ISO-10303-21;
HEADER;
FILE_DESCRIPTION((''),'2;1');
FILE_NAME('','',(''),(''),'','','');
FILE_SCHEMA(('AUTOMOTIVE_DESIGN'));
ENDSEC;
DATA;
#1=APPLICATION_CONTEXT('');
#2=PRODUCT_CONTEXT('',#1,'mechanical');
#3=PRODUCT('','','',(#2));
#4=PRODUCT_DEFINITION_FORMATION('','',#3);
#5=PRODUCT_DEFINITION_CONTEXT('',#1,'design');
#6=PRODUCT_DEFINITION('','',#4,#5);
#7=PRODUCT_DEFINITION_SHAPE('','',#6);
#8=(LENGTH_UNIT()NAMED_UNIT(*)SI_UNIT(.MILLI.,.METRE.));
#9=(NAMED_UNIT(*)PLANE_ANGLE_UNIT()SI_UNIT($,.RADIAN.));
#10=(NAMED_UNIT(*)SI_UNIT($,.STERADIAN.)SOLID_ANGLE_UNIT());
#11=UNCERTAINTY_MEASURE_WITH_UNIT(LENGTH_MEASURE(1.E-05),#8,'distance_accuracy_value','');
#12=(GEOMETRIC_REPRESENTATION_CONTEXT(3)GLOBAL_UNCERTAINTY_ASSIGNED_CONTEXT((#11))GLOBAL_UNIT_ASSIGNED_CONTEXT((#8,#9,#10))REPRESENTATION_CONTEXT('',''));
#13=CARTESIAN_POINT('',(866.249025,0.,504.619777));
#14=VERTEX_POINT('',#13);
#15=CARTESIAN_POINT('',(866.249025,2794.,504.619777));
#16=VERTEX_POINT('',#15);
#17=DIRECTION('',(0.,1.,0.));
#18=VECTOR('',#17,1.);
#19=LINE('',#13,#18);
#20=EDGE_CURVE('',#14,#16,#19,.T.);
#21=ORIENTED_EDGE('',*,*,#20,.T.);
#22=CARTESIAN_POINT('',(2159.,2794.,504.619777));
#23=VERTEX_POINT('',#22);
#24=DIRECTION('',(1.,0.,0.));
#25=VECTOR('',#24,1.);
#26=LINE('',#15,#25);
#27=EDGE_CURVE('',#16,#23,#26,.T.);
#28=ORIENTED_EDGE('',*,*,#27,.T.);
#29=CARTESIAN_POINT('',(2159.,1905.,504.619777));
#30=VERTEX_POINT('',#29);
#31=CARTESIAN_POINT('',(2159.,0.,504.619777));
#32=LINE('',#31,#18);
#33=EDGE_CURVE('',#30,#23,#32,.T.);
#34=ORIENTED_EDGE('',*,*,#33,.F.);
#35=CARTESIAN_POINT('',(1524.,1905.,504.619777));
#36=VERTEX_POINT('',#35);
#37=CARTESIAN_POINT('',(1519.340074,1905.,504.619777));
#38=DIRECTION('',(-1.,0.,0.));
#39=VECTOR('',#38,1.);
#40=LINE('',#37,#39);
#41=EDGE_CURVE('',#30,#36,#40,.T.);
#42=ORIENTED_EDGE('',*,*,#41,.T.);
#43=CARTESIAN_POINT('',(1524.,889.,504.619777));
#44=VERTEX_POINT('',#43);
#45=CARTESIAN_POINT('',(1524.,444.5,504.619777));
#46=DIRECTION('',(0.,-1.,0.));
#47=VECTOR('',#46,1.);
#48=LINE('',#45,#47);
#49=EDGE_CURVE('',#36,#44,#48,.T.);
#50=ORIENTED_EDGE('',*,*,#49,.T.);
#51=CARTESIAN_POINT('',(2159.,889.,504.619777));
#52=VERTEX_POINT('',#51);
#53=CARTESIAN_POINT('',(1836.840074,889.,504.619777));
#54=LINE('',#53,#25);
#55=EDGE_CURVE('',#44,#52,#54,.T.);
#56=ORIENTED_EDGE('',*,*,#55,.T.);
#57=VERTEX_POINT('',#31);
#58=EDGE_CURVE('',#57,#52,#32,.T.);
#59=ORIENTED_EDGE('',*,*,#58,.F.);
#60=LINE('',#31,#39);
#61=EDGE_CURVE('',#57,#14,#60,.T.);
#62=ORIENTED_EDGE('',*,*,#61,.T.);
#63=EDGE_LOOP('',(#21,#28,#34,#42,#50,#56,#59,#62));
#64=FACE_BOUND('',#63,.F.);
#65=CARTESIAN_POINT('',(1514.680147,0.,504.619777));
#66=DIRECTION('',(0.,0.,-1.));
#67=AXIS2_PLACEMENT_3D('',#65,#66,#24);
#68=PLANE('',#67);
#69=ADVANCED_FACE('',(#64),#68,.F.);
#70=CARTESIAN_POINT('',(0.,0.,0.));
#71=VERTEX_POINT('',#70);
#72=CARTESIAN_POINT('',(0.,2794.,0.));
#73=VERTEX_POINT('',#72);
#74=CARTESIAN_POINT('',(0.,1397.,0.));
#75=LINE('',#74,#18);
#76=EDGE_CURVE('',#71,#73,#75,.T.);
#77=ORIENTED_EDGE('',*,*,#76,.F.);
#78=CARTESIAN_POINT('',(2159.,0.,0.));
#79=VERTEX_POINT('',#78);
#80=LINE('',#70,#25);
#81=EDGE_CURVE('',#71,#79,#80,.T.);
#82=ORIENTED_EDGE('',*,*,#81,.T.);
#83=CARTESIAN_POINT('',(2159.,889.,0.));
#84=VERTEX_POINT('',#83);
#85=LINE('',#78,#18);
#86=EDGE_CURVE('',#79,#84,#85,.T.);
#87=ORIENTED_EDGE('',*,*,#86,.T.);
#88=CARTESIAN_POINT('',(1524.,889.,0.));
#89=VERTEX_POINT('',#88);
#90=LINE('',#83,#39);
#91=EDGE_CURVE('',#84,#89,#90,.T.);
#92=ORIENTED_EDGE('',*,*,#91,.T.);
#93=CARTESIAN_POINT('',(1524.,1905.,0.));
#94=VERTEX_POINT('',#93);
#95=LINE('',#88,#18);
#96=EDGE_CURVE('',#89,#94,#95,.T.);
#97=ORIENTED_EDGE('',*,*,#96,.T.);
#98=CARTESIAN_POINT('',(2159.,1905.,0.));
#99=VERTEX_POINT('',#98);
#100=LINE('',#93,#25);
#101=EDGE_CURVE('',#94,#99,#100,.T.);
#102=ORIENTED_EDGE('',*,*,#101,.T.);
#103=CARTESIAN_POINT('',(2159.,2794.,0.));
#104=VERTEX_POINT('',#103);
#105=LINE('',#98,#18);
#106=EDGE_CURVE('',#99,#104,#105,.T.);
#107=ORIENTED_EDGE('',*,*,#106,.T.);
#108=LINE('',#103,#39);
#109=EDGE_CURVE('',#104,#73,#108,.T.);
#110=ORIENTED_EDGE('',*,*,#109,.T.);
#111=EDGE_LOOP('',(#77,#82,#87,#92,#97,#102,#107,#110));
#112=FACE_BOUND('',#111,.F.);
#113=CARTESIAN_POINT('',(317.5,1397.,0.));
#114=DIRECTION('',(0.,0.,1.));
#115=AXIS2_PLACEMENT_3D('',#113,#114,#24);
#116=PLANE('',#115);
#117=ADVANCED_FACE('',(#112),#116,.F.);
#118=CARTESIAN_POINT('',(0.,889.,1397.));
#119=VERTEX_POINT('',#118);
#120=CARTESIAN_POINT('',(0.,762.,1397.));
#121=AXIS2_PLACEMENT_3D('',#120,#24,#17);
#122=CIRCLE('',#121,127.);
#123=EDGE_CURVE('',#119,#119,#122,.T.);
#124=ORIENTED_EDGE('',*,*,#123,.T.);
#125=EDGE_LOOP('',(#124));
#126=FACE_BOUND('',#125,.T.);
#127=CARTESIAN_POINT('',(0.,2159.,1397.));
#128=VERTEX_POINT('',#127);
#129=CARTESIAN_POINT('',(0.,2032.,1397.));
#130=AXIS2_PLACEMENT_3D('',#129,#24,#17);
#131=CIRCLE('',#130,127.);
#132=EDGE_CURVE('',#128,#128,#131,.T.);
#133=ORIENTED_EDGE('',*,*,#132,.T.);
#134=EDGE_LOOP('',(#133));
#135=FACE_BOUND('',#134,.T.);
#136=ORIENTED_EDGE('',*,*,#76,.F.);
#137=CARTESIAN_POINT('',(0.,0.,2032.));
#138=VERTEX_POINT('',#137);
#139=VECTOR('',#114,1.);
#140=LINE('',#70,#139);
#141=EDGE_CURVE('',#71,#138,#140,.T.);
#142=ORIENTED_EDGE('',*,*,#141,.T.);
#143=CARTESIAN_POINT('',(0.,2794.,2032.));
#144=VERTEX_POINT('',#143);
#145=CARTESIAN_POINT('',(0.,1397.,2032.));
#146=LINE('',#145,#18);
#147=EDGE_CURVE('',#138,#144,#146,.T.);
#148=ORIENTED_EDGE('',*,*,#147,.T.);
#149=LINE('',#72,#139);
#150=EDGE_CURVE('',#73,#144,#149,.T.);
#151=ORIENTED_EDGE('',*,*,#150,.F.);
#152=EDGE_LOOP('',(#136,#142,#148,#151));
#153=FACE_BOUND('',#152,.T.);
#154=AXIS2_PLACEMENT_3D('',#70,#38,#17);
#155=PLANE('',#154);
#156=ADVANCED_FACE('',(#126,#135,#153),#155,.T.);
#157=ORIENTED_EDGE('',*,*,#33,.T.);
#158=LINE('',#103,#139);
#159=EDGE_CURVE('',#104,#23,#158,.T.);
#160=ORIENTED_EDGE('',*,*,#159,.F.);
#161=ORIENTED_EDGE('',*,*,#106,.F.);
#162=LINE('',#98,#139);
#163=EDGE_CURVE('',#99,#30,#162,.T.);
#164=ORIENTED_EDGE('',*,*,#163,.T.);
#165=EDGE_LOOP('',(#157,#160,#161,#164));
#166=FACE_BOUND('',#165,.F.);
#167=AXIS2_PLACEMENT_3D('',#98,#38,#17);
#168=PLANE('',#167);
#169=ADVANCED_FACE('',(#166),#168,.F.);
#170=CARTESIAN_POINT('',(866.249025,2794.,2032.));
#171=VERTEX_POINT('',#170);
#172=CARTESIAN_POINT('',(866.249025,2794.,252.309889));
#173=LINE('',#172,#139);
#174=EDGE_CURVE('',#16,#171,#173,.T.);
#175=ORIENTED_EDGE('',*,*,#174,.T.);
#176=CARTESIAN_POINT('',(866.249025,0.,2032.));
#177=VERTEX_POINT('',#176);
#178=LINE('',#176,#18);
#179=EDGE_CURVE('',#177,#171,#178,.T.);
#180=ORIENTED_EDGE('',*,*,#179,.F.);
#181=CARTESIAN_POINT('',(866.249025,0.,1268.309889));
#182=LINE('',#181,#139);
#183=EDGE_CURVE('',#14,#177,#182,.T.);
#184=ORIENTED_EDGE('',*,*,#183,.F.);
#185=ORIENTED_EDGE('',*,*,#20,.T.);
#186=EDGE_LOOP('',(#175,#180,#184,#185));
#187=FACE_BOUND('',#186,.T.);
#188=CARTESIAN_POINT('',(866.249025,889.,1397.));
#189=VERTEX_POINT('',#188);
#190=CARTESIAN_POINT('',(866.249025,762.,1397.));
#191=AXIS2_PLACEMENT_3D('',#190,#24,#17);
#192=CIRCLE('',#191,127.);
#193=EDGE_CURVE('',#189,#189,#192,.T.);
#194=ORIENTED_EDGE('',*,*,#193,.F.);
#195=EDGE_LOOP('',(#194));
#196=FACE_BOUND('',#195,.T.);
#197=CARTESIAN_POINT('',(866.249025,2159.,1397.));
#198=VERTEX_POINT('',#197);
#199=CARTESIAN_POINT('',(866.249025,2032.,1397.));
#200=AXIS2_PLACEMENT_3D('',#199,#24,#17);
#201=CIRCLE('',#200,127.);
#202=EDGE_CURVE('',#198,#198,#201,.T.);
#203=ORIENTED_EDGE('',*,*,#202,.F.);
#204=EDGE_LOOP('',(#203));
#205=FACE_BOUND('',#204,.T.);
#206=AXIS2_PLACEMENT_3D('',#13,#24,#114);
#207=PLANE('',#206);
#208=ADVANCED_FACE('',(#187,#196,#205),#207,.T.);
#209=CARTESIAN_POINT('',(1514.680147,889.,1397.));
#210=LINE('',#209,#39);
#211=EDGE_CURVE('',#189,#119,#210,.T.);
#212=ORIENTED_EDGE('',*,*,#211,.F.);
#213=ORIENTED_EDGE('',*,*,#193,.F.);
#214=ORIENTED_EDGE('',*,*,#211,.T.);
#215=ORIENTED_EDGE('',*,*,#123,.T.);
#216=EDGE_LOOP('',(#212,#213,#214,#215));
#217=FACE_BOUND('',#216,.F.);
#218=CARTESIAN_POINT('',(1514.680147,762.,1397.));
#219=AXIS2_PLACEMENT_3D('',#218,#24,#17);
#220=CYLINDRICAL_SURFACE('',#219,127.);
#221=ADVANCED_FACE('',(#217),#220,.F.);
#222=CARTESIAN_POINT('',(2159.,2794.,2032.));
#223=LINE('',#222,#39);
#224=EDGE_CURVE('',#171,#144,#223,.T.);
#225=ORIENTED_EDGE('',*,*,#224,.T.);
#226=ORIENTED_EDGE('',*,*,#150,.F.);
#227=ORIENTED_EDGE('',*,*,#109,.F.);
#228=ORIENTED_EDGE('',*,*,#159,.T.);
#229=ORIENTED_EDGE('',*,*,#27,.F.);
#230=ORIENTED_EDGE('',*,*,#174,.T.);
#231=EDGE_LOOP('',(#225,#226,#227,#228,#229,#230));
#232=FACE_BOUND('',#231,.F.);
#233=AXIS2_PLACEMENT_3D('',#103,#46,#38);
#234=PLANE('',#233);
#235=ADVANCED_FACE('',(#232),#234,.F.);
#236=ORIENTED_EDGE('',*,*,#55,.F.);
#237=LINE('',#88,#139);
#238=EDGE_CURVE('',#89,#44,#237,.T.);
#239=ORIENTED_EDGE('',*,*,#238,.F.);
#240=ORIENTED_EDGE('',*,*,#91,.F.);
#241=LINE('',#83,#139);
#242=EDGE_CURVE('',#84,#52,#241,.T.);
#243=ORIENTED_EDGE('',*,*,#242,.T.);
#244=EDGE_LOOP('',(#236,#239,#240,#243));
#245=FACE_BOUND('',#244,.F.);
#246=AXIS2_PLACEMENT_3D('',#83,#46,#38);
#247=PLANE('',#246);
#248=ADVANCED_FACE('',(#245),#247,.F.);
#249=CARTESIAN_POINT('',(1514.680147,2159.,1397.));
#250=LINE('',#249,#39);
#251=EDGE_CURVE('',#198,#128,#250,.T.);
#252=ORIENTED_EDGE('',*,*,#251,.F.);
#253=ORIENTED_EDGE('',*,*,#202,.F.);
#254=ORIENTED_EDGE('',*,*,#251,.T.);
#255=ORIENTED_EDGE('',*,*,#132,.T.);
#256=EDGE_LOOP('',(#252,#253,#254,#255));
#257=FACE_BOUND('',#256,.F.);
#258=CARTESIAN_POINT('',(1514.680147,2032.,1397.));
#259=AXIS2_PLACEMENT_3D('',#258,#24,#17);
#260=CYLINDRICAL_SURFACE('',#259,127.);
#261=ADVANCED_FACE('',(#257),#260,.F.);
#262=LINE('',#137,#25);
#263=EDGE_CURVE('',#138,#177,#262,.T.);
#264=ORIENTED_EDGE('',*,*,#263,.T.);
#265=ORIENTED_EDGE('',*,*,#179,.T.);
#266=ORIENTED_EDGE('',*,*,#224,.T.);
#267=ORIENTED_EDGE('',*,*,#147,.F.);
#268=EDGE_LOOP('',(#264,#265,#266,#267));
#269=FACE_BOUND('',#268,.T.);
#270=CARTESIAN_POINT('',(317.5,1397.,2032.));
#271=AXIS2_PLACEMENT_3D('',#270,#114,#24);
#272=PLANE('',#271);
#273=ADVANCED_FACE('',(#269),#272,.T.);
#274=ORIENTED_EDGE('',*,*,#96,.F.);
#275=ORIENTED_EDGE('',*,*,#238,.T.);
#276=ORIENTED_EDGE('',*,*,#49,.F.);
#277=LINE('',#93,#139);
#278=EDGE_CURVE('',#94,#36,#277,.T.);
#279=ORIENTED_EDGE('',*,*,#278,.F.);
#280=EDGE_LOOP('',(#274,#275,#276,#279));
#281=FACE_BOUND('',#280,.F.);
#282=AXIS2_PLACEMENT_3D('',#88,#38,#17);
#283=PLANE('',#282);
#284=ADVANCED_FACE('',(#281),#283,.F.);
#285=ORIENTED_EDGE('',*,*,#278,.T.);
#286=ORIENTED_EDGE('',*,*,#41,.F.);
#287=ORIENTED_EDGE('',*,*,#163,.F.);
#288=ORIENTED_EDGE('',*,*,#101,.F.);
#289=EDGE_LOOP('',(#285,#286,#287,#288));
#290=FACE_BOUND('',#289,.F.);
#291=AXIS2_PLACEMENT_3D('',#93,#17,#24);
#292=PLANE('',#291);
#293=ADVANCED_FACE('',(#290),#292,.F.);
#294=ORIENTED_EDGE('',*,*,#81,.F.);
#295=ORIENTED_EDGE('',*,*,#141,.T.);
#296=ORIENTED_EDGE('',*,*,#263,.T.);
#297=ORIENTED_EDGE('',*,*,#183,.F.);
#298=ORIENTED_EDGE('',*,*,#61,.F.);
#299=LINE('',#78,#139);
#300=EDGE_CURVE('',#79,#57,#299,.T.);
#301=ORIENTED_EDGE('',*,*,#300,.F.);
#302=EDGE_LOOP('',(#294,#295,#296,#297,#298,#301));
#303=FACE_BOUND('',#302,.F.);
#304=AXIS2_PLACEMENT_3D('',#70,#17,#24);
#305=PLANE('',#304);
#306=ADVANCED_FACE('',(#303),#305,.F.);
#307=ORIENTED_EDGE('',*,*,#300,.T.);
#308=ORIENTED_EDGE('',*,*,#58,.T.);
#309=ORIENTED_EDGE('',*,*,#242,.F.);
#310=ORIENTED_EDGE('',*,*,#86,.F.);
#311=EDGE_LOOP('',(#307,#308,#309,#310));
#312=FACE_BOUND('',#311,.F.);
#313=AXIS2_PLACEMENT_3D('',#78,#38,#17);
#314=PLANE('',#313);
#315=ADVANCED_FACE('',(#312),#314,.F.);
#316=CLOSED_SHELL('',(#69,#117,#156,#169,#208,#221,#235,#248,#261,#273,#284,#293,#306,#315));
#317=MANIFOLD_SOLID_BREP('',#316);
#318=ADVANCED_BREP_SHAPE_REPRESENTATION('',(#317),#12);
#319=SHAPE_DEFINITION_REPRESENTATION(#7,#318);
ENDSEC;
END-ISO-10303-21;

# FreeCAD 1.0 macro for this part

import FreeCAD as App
import Part
import Sketcher
from FreeCAD import Vector
Q = App.Units.Quantity


def add_polygon(sketch, points):
    """Adds a closed chain of lines whose ends are joined by coincident constraints."""
    first, n = sketch.GeometryCount, len(points)
    for a, b in zip(points, points[1:] + points[:1]):
        sketch.addGeometry(Part.LineSegment(App.Vector(*a, 0), App.Vector(*b, 0)), False)
    for i in range(n):
        sketch.addConstraint(Sketcher.Constraint("Coincident", first + i, 2, first + (i + 1) % n, 1))

doc = App.newDocument("Part")
body = doc.addObject("PartDesign::Body", "Body")

sketch1 = body.newObject("Sketcher::SketchObject", "Sketch")
sketch1.AttachmentSupport = (doc.getObject("XY_Plane"), [""])
sketch1.MapMode = "FlatFace"
add_polygon(sketch1, [(0, 2794), (0, 0), (2159, 0), (2159, 889), (1524, 889), (1524, 1905), (2159, 1905), (2159, 2794)])
sketch1.addConstraint([
    Sketcher.Constraint("Vertical", 0),
    Sketcher.Constraint("Horizontal", 1),
    Sketcher.Constraint("Vertical", 2),
    Sketcher.Constraint("Horizontal", 3),
    Sketcher.Constraint("Vertical", 4),
    Sketcher.Constraint("Horizontal", 5),
    Sketcher.Constraint("Vertical", 6),
    Sketcher.Constraint("Horizontal", 7),
    Sketcher.Constraint("Coincident", 0, 2, -1, 1),
    Sketcher.Constraint("Vertical", 2, 2, 5, 2),
    Sketcher.Constraint("Equal", 2, 6),
    Sketcher.Constraint("DistanceX", 1, 1, 1, 2, Q("85 in")),
    Sketcher.Constraint("DistanceX", 3, 2, 3, 1, Q("25 in")),
    Sketcher.Constraint("DistanceY", 0, 2, 0, 1, Q("110 in")),
    Sketcher.Constraint("DistanceY", 2, 1, 2, 2, Q("35 in")),
])
pad1 = body.newObject("PartDesign::Pad", "Pad")
pad1.Profile = sketch1
pad1.Length = Q("80 in")

sketch2 = body.newObject("Sketcher::SketchObject", "Sketch001")
sketch2.AttachmentSupport = (doc.getObject("XZ_Plane"), [""])
sketch2.MapMode = "FlatFace"
add_polygon(sketch2, [(1515, 2032), (1515, 505), (2159, 505), (2159, 2032)])
sketch2.addConstraint([
    Sketcher.Constraint("Vertical", 0),
    Sketcher.Constraint("Horizontal", 1),
    Sketcher.Constraint("Vertical", 2),
    Sketcher.Constraint("Horizontal", 3),
    Sketcher.Constraint("DistanceX", -1, 1, 1, 2, Q("85 in")),
    Sketcher.Constraint("DistanceY", -1, 1, 2, 2, Q("80 in")),
    Sketcher.Constraint("DistanceX", 1, 1, 1, 2, 644.319853),
    Sketcher.Constraint("DistanceY", 0, 2, 0, 1, 1527.380223),
])
pocket1 = body.newObject("PartDesign::Pocket", "Pocket")
pocket1.Profile = sketch2
pocket1.Type = "ThroughAll"

sketch3 = body.newObject("Sketcher::SketchObject", "Sketch002")
sketch3.AttachmentSupport = (doc.getObject("YZ_Plane"), [""])
sketch3.MapMode = "FlatFace"
sketch3.AttachmentOffset = App.Placement(Vector(0, 0, 1514.680147), App.Rotation())
sketch3.addGeometry([
    Part.Circle(Vector(2032, 1397, 0), Vector(0, 0, 1), 127),
    Part.Circle(Vector(762, 1397, 0), Vector(0, 0, 1), 127),
], False)
sketch3.addConstraint([
    Sketcher.Constraint("Equal", 0, 1),
    Sketcher.Constraint("Horizontal", 0, 3, 1, 3),
    Sketcher.Constraint("Diameter", 0, Q("10 in")),
    Sketcher.Constraint("DistanceX", -1, 1, 0, 3, Q("80 in")),
    Sketcher.Constraint("DistanceY", -1, 1, 0, 3, Q("55 in")),
    Sketcher.Constraint("DistanceX", -1, 1, 1, 3, Q("30 in")),
])
pocket2 = body.newObject("PartDesign::Pocket", "Pocket001")
pocket2.Profile = sketch3
pocket2.Type = "ThroughAll"

sketch4 = body.newObject("Sketcher::SketchObject", "Sketch003")
sketch4.AttachmentSupport = (doc.getObject("XZ_Plane"), [""])
sketch4.MapMode = "FlatFace"
add_polygon(sketch4, [(866, 2032), (866, 505), (1515, 505), (1515, 2032)])
sketch4.addConstraint([
    Sketcher.Constraint("Vertical", 0),
    Sketcher.Constraint("Horizontal", 1),
    Sketcher.Constraint("Vertical", 2),
    Sketcher.Constraint("Horizontal", 3),
    Sketcher.Constraint("DistanceY", -1, 1, 2, 2, Q("80 in")),
    Sketcher.Constraint("DistanceX", 1, 1, 1, 2, 648.431122),
    Sketcher.Constraint("DistanceY", 0, 2, 0, 1, 1527.380223),
    Sketcher.Constraint("DistanceX", -1, 1, 0, 2, 866.249025),
])
pocket3 = body.newObject("PartDesign::Pocket", "Pocket002")
pocket3.Profile = sketch4
pocket3.Type = "ThroughAll"

doc.recompute()
